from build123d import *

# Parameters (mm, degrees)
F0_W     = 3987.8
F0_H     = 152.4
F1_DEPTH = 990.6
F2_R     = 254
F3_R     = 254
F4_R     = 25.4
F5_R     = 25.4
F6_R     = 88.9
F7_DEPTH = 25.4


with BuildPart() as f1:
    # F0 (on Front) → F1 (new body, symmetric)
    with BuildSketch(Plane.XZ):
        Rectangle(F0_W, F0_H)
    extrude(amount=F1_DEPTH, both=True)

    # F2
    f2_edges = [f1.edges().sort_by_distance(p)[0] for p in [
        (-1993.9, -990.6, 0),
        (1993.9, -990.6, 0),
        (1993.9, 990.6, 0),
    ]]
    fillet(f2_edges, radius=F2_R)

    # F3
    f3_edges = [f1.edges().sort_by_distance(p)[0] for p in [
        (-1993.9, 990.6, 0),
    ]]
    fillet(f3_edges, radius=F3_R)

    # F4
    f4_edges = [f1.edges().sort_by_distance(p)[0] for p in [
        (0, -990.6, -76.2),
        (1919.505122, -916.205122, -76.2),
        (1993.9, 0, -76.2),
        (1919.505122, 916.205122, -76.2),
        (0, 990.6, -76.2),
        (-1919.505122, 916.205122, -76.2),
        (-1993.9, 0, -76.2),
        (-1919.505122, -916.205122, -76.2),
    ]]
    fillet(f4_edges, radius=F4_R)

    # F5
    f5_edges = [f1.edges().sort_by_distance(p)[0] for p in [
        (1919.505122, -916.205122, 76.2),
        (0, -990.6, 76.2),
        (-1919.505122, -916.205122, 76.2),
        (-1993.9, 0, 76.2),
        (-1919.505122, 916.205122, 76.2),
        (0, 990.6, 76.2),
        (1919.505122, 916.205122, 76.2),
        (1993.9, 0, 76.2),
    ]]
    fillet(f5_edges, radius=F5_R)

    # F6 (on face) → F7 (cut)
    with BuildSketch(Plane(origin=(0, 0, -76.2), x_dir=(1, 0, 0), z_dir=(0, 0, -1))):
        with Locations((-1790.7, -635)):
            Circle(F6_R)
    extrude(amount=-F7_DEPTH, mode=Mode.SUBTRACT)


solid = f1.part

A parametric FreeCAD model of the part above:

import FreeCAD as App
import Part
import Sketcher
Q = App.Units.Quantity


def edges_at(feature, points):
    """Names of the edges that pass closest to the given points."""
    edges = feature.Shape.Edges
    near = lambda p: min(range(len(edges)), key=lambda i: edges[i].distToShape(Part.Vertex(*p))[0])
    return sorted({f"Edge{near(p) + 1}" for p in points})

doc = App.newDocument("Part")
body = doc.addObject("PartDesign::Body", "Body")

# Sketch on XZ plane
sketch1 = body.newObject("Sketcher::SketchObject", "Sketch")
sketch1.AttachmentSupport = (doc.getObject("XZ_Plane"), [""])
sketch1.MapMode = "FlatFace"
sketch1.addGeometry(Part.LineSegment(App.Vector(-1993.9, 76.2, 0), App.Vector(-1993.9, -76.2, 0)), False)
sketch1.addGeometry(Part.LineSegment(App.Vector(-1993.9, -76.2, 0), App.Vector(1993.9, -76.2, 0)), False)
sketch1.addGeometry(Part.LineSegment(App.Vector(1993.9, -76.2, 0), App.Vector(1993.9, 76.2, 0)), False)
sketch1.addGeometry(Part.LineSegment(App.Vector(1993.9, 76.2, 0), App.Vector(-1993.9, 76.2, 0)), False)
sketch1.addConstraint(Sketcher.Constraint("Coincident", 0, 2, 1, 1))
sketch1.addConstraint(Sketcher.Constraint("Coincident", 1, 2, 2, 1))
sketch1.addConstraint(Sketcher.Constraint("Coincident", 2, 2, 3, 1))
sketch1.addConstraint(Sketcher.Constraint("Coincident", 3, 2, 0, 1))
sketch1.addConstraint(Sketcher.Constraint("Vertical", 0))
sketch1.addConstraint(Sketcher.Constraint("Horizontal", 1))
sketch1.addConstraint(Sketcher.Constraint("Vertical", 2))
sketch1.addConstraint(Sketcher.Constraint("Horizontal", 3))
sketch1.addConstraint(Sketcher.Constraint("Symmetric", 0, 2, 2, 2, -1, 1))
sketch1.addConstraint(Sketcher.Constraint("DistanceX", 1, 1, 1, 2, Q("157 in")))
sketch1.addConstraint(Sketcher.Constraint("DistanceY", 0, 2, 0, 1, Q("6 in")))
pad1 = body.newObject("PartDesign::Pad", "Pad")
pad1.Profile = sketch1
pad1.Length = Q("78 in")
pad1.Midplane = True
doc.recompute()

fillet = body.newObject("PartDesign::Fillet", "Fillet")
fillet.Base = (pad1, edges_at(pad1, [(-1993.9, -990.6, 0), (1993.9, -990.6, 0), (1993.9, 990.6, 0)]))
fillet.Radius = Q("10 in")
doc.recompute()

fillet2 = body.newObject("PartDesign::Fillet", "Fillet001")
fillet2.Base = (fillet, edges_at(fillet, [(-1993.9, 990.6, 0)]))
fillet2.Radius = Q("10 in")
doc.recompute()

fillet3 = body.newObject("PartDesign::Fillet", "Fillet002")
fillet3.Base = (fillet2, edges_at(fillet2, [
    (0, -990.6, -76.2),
    (1919.505, -916.205, -76.2),
    (1993.9, 0, -76.2),
    (1919.505, 916.205, -76.2),
    (0, 990.6, -76.2),
    (-1919.505, 916.205, -76.2),
    (-1993.9, 0, -76.2),
    (-1919.505, -916.205, -76.2),
]))
fillet3.Radius = Q("1 in")
doc.recompute()

fillet4 = body.newObject("PartDesign::Fillet", "Fillet003")
fillet4.Base = (fillet3, edges_at(fillet3, [
    (1919.505, -916.205, 76.2),
    (0, -990.6, 76.2),
    (-1919.505, -916.205, 76.2),
    (-1993.9, 0, 76.2),
    (-1919.505, 916.205, 76.2),
    (0, 990.6, 76.2),
    (1919.505, 916.205, 76.2),
    (1993.9, 0, 76.2),
]))
fillet4.Radius = Q("1 in")

# Sketch on XY plane
sketch2 = body.newObject("Sketcher::SketchObject", "Sketch001")
sketch2.AttachmentSupport = (doc.getObject("XY_Plane"), [""])
sketch2.MapMode = "FlatFace"
sketch2.AttachmentOffset = App.Placement(App.Vector(0, 0, -3 * 25.4), App.Rotation())
sketch2.addGeometry(Part.Circle(App.Vector(-1790.7, 635, 0), App.Vector(0, 0, 1), 88.9), False)
sketch2.addConstraint(Sketcher.Constraint("Diameter", 0, Q("7 in")))
sketch2.addConstraint(Sketcher.Constraint("DistanceY", -1, 1, 0, 3, Q("25 in")))
sketch2.addConstraint(Sketcher.Constraint("DistanceX", 0, 3, -1, 1, Q("70.5 in")))
pocket1 = body.newObject("PartDesign::Pocket", "Pocket")
pocket1.Profile = sketch2
pocket1.Length = Q("1 in")
pocket1.Reversed = True

doc.recompute()
